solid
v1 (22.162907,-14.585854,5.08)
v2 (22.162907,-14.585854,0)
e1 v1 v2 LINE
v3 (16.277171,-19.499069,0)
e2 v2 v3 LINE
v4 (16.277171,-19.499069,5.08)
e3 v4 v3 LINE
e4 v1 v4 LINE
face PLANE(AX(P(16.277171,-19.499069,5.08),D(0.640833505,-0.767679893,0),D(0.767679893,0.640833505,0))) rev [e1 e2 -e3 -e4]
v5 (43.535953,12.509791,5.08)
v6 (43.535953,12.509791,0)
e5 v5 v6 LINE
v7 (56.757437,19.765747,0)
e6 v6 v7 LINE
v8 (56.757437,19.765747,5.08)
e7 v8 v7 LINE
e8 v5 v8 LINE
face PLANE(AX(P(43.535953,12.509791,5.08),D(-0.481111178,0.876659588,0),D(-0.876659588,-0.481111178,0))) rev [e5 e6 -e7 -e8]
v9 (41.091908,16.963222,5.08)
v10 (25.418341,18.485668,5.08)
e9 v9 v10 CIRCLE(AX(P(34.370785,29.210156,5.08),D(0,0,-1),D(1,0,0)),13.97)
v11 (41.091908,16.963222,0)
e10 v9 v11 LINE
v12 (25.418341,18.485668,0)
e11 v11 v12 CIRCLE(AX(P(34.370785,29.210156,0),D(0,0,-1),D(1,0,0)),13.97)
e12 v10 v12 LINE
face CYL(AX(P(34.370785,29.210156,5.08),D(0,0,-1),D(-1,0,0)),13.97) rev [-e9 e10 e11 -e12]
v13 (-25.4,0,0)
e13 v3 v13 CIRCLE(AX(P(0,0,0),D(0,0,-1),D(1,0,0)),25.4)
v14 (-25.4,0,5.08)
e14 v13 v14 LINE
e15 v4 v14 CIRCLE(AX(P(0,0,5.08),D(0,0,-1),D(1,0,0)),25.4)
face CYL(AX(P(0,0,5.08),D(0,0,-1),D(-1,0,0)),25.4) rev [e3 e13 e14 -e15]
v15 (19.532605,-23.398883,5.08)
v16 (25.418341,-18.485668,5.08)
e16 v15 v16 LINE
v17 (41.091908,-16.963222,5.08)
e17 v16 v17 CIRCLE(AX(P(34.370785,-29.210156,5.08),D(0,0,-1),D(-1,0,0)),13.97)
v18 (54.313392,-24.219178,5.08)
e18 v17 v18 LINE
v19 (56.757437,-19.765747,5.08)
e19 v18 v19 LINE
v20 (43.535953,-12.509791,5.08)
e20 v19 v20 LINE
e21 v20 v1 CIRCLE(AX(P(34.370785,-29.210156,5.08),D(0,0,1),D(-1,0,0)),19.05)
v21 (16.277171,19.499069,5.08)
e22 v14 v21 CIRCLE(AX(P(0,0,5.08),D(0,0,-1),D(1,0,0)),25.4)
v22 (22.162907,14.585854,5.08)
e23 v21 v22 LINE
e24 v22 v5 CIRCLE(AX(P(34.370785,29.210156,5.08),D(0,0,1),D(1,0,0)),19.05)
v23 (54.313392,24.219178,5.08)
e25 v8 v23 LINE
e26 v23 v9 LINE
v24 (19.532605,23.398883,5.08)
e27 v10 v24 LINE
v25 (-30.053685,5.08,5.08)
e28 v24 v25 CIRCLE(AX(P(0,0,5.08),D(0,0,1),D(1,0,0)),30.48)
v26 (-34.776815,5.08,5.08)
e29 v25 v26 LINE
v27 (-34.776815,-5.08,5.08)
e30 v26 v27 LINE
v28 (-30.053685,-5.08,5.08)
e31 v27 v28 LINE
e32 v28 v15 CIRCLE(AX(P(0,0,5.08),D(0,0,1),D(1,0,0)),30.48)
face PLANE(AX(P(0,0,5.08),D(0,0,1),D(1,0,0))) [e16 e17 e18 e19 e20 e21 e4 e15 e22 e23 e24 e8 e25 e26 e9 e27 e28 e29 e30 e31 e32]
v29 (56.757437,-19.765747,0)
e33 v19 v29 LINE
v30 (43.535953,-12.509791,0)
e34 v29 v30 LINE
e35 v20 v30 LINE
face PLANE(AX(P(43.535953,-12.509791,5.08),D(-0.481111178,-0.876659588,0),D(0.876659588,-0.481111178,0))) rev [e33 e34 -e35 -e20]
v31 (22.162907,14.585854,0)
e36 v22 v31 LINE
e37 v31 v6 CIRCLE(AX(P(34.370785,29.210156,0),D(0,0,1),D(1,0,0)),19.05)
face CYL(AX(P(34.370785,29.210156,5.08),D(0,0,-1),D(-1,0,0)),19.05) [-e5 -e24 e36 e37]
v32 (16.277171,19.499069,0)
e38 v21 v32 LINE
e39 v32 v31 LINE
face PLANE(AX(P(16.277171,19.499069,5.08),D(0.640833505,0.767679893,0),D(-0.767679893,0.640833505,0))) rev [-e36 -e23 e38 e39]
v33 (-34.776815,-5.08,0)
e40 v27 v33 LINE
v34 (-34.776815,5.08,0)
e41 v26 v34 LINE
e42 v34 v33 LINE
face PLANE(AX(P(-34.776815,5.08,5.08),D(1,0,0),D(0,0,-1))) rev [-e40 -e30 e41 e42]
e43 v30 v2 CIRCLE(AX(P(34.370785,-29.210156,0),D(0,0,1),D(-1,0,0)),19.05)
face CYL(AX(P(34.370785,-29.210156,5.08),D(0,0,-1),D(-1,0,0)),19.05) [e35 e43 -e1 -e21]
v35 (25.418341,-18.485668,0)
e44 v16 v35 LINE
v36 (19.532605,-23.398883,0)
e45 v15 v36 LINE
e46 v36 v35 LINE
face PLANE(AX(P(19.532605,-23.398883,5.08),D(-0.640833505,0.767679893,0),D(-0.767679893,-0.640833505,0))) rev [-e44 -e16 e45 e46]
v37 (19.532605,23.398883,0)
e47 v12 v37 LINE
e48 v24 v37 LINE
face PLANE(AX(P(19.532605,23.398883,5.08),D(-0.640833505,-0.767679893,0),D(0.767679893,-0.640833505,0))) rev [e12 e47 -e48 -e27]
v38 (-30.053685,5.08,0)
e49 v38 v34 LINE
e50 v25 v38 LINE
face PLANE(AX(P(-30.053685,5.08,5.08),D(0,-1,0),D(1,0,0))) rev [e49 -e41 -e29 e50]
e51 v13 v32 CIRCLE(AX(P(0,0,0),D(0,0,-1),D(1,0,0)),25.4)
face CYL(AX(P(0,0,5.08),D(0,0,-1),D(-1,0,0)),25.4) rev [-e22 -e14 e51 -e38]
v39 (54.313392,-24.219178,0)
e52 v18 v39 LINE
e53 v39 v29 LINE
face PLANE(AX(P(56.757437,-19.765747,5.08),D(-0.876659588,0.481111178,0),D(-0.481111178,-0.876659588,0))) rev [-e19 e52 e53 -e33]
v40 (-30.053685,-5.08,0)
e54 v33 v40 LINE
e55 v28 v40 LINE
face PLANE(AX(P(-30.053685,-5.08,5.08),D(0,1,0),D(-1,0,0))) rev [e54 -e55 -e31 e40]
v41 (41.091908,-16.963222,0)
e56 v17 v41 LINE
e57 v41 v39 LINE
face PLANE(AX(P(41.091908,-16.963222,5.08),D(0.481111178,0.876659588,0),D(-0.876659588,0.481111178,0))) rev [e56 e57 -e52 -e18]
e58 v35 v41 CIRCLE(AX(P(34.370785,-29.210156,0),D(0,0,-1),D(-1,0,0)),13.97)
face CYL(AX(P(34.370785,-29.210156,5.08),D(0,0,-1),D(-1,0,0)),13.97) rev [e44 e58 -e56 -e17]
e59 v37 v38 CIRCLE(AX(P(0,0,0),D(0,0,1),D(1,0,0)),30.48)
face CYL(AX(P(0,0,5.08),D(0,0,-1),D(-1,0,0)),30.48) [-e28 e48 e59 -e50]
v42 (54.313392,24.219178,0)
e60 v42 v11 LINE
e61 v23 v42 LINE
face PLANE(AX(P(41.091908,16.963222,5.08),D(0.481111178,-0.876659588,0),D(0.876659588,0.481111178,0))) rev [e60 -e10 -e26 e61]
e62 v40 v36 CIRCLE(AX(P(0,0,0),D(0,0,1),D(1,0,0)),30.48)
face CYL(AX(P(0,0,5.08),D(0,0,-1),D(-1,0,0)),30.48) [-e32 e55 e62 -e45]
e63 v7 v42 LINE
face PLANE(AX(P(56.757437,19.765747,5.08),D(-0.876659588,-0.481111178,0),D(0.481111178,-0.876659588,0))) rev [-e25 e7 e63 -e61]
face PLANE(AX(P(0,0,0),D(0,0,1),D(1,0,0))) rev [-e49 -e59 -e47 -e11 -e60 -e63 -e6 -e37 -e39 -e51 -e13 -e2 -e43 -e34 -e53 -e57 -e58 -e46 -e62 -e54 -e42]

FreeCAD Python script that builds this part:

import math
import FreeCAD as App
import Part
import Sketcher

V = App.Vector
Q = App.Units.Quantity

doc = App.newDocument("Part")
body = doc.addObject("PartDesign::Body", "Body")

sketch1 = body.newObject("Sketcher::SketchObject", "Sketch")
sketch1.AttachmentSupport = (doc.getObject("XY_Plane"), [""])
sketch1.MapMode = "FlatFace"
sketch1.addGeometry([
    Part.LineSegment(V(16.3, 19.5, 0), V(22.2, 14.6, 0)),
    Part.ArcOfCircle(Part.Circle(V(34.4, 29.2, 0), V(0, 0, 1), 19.1), math.radians(-130), math.radians(-61)),
    Part.LineSegment(V(43.5, 12.5, 0), V(56.8, 19.8, 0)),
    Part.LineSegment(V(56.8, 19.8, 0), V(54.3, 24.2, 0)),
    Part.LineSegment(V(54.3, 24.2, 0), V(41.1, 17, 0)),
    Part.ArcOfCircle(Part.Circle(V(34.4, 29.2, 0), V(0, 0, 1), 14), math.radians(-130), math.radians(-61)),
    Part.LineSegment(V(25.4, 18.5, 0), V(19.5, 23.4, 0)),
    Part.ArcOfCircle(Part.Circle(V(0, 0, 0), V(0, 0, 1), 30.5), math.radians(50), math.radians(170)),
    Part.LineSegment(V(-30.1, 5.1, 0), V(-34.8, 5.1, 0)),
    Part.LineSegment(V(-34.8, 5.1, 0), V(-34.8, -5.1, 0)),
    Part.LineSegment(V(-34.8, -5.1, 0), V(-30.1, -5.1, 0)),
    Part.ArcOfCircle(Part.Circle(V(0, 0, 0), V(0, 0, 1), 30.5), math.radians(-170), math.radians(-50)),
    Part.LineSegment(V(19.5, -23.4, 0), V(25.4, -18.5, 0)),
    Part.ArcOfCircle(Part.Circle(V(34.4, -29.2, 0), V(0, 0, 1), 14), math.radians(61), math.radians(130)),
    Part.LineSegment(V(41.1, -17, 0), V(54.3, -24.2, 0)),
    Part.LineSegment(V(54.3, -24.2, 0), V(56.8, -19.8, 0)),
    Part.LineSegment(V(56.8, -19.8, 0), V(43.5, -12.5, 0)),
    Part.ArcOfCircle(Part.Circle(V(34.4, -29.2, 0), V(0, 0, 1), 19.1), math.radians(61), math.radians(130)),
    Part.LineSegment(V(22.2, -14.6, 0), V(16.3, -19.5, 0)),
    Part.ArcOfCircle(Part.Circle(V(0, 0, 0), V(0, 0, 1), 25.4), math.radians(50), math.radians(310)),
], False)
sketch1.addConstraint([
    Sketcher.Constraint("Tangent", 0, 2, 1, 1),
    Sketcher.Constraint("Tangent", 1, 2, 2, 1),
    Sketcher.Constraint("Coincident", 2, 2, 3, 1),
    Sketcher.Constraint("Coincident", 3, 2, 4, 1),
    Sketcher.Constraint("Tangent", 4, 2, 5, 2),
    Sketcher.Constraint("Tangent", 5, 1, 6, 1),
    Sketcher.Constraint("Tangent", 6, 2, 7, 1),
    Sketcher.Constraint("Coincident", 7, 2, 8, 1),
    Sketcher.Constraint("Coincident", 8, 2, 9, 1),
    Sketcher.Constraint("Coincident", 9, 2, 10, 1),
    Sketcher.Constraint("Coincident", 10, 2, 11, 1),
    Sketcher.Constraint("Tangent", 11, 2, 12, 1),
    Sketcher.Constraint("Tangent", 12, 2, 13, 2),
    Sketcher.Constraint("Tangent", 13, 1, 14, 1),
    Sketcher.Constraint("Coincident", 14, 2, 15, 1),
    Sketcher.Constraint("Coincident", 15, 2, 16, 1),
    Sketcher.Constraint("Tangent", 16, 2, 17, 1),
    Sketcher.Constraint("Tangent", 17, 2, 18, 1),
    Sketcher.Constraint("Tangent", 18, 2, 19, 2),
    Sketcher.Constraint("Tangent", 19, 1, 0, 1),
    Sketcher.Constraint("Horizontal", 8),
    Sketcher.Constraint("Vertical", 9),
    Sketcher.Constraint("Horizontal", 10),
    Sketcher.Constraint("Coincident", 7, 3, -1, 1),
    Sketcher.Constraint("Coincident", 11, 3, -1, 1),
    Sketcher.Constraint("Coincident", 19, 3, -1, 1),
    Sketcher.Constraint("Coincident", 5, 3, 1, 3),
    Sketcher.Constraint("Coincident", 17, 3, 13, 3),
    Sketcher.Constraint("Equal", 7, 11),
    Sketcher.Constraint("Equal", 5, 13),
    Sketcher.Constraint("Equal", 1, 17),
    Sketcher.Constraint("Symmetric", 1, 3, 13, 3, -1),
    Sketcher.Constraint("Symmetric", 3, 2, 14, 2, -1),
    Sketcher.Constraint("Symmetric", 2, 2, 15, 2, -1),
    Sketcher.Constraint("Perpendicular", 2, 3),
    Sketcher.Constraint("Perpendicular", 3, 4),
    Sketcher.Constraint("Parallel", 0, 6),
    Sketcher.Constraint("Vertical", 7, 2, 10, 2),
    Sketcher.Constraint("Radius", 19, Q("1 in")),
    Sketcher.Constraint("Radius", 7, Q("1.2 in")),
    Sketcher.Constraint("Radius", 1, Q("0.75 in")),
    Sketcher.Constraint("DistanceY", 9, 2, 9, 1, Q("0.4 in")),
    Sketcher.Constraint("DistanceX", 8, 2, 8, 1, 4.72313),
    Sketcher.Constraint("DistanceY", 0, 2, 5, 3, 14.624302),
    Sketcher.Constraint("DistanceX", 6, 2, 0, 2, 2.630301),
    Sketcher.Constraint("DistanceX", 17, 2, 13, 1, 18.929001),
    Sketcher.Constraint("DistanceX", 1, 3, 2, 2, 22.386652),
])
pad1 = body.newObject("PartDesign::Pad", "Pad")
pad1.Profile = sketch1
pad1.Length = Q("0.2 in")

doc.recompute()
